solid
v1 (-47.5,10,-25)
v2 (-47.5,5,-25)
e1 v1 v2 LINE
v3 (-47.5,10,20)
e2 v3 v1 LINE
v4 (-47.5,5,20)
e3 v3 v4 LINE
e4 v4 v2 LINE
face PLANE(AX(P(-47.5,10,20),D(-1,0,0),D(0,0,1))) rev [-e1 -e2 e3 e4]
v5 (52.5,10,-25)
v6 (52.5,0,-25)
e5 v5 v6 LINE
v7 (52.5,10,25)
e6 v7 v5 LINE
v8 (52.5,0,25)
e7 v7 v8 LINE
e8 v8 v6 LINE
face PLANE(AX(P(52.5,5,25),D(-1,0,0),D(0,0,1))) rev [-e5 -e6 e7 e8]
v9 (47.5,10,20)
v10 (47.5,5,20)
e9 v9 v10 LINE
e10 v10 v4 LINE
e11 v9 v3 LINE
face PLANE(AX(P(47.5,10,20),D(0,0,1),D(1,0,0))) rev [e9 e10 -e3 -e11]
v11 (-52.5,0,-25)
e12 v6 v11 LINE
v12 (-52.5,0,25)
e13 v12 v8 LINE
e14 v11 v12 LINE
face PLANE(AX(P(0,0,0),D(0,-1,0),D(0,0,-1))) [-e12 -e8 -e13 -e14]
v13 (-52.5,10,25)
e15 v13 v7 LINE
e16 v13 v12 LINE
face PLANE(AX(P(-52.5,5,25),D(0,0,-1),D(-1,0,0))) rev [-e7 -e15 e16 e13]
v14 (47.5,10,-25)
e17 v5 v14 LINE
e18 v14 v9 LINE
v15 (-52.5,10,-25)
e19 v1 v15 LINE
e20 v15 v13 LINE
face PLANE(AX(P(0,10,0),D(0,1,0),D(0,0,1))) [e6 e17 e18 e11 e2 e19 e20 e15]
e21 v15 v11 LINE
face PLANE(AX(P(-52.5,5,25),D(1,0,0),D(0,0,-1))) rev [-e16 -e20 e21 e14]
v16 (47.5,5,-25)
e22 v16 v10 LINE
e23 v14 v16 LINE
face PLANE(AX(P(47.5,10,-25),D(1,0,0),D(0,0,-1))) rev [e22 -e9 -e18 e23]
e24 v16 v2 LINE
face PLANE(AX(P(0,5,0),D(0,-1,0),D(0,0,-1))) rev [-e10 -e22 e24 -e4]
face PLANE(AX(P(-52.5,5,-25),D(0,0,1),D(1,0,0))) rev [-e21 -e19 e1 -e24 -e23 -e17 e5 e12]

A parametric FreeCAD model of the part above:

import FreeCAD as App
import Part
import Sketcher
from FreeCAD import Vector


def add_polygon(sketch, points):
    """Adds a closed chain of lines whose ends are joined by coincident constraints."""
    first, n = sketch.GeometryCount, len(points)
    for a, b in zip(points, points[1:] + points[:1]):
        sketch.addGeometry(Part.LineSegment(App.Vector(*a, 0), App.Vector(*b, 0)), False)
    for i in range(n):
        sketch.addConstraint(Sketcher.Constraint("Coincident", first + i, 2, first + (i + 1) % n, 1))

doc = App.newDocument("Part")
body = doc.addObject("PartDesign::Body", "Body")

# Sketch on XZ plane
sketch1 = body.newObject("Sketcher::SketchObject", "Sketch")
sketch1.AttachmentSupport = (doc.getObject("XZ_Plane"), [""])
sketch1.MapMode = "FlatFace"
add_polygon(sketch1, [(-52, -25), (-52, 25), (52, 25), (52, -25)])  # lines 0-3
sketch1.addConstraint(Sketcher.Constraint("Vertical", 0))
sketch1.addConstraint(Sketcher.Constraint("Horizontal", 1))
sketch1.addConstraint(Sketcher.Constraint("Vertical", 2))
sketch1.addConstraint(Sketcher.Constraint("Horizontal", 3))
sketch1.addConstraint(Sketcher.Constraint("Symmetric", 0, 2, 2, 2, -1, 1))
sketch1.addConstraint(Sketcher.Constraint("DistanceX", 1, 1, 1, 2, 105.0))
sketch1.addConstraint(Sketcher.Constraint("DistanceY", 0, 1, 0, 2, 50.0))
pad1 = body.newObject("PartDesign::Pad", "Pad")
pad1.Profile = sketch1
pad1.Length = 5
pad1.Reversed = True

# Sketch on XZ plane
sketch2 = body.newObject("Sketcher::SketchObject", "Sketch001")
sketch2.AttachmentSupport = (doc.getObject("XZ_Plane"), [""])
sketch2.MapMode = "FlatFace"
sketch2.AttachmentOffset = App.Placement(Vector(0, 0, -5), App.Rotation())
add_polygon(sketch2, [(-52, -25), (-52, 25), (52, 25), (52, -25), (48, -25), (48, 20), (-48, 20), (-48, -25)])  # lines 0-7
sketch2.addConstraint(Sketcher.Constraint("Vertical", 0))
sketch2.addConstraint(Sketcher.Constraint("Horizontal", 1))
sketch2.addConstraint(Sketcher.Constraint("Vertical", 2))
sketch2.addConstraint(Sketcher.Constraint("Horizontal", 3))
sketch2.addConstraint(Sketcher.Constraint("Vertical", 4))
sketch2.addConstraint(Sketcher.Constraint("Horizontal", 5))
sketch2.addConstraint(Sketcher.Constraint("Vertical", 6))
sketch2.addConstraint(Sketcher.Constraint("Horizontal", 7))
sketch2.addConstraint(Sketcher.Constraint("Symmetric", 0, 2, 2, 2, -1, 1))
sketch2.addConstraint(Sketcher.Constraint("Symmetric", 3, 2, 6, 2, -2))
sketch2.addConstraint(Sketcher.Constraint("DistanceX", 1, 1, 1, 2, 105.0))
sketch2.addConstraint(Sketcher.Constraint("DistanceX", 3, 2, 3, 1, 5.0))
sketch2.addConstraint(Sketcher.Constraint("DistanceY", 0, 1, 0, 2, 50.0))
sketch2.addConstraint(Sketcher.Constraint("DistanceY", 4, 1, 4, 2, 45.0))
pad2 = body.newObject("PartDesign::Pad", "Pad001")
pad2.Profile = sketch2
pad2.Length = 5
pad2.Reversed = True

doc.recompute()
